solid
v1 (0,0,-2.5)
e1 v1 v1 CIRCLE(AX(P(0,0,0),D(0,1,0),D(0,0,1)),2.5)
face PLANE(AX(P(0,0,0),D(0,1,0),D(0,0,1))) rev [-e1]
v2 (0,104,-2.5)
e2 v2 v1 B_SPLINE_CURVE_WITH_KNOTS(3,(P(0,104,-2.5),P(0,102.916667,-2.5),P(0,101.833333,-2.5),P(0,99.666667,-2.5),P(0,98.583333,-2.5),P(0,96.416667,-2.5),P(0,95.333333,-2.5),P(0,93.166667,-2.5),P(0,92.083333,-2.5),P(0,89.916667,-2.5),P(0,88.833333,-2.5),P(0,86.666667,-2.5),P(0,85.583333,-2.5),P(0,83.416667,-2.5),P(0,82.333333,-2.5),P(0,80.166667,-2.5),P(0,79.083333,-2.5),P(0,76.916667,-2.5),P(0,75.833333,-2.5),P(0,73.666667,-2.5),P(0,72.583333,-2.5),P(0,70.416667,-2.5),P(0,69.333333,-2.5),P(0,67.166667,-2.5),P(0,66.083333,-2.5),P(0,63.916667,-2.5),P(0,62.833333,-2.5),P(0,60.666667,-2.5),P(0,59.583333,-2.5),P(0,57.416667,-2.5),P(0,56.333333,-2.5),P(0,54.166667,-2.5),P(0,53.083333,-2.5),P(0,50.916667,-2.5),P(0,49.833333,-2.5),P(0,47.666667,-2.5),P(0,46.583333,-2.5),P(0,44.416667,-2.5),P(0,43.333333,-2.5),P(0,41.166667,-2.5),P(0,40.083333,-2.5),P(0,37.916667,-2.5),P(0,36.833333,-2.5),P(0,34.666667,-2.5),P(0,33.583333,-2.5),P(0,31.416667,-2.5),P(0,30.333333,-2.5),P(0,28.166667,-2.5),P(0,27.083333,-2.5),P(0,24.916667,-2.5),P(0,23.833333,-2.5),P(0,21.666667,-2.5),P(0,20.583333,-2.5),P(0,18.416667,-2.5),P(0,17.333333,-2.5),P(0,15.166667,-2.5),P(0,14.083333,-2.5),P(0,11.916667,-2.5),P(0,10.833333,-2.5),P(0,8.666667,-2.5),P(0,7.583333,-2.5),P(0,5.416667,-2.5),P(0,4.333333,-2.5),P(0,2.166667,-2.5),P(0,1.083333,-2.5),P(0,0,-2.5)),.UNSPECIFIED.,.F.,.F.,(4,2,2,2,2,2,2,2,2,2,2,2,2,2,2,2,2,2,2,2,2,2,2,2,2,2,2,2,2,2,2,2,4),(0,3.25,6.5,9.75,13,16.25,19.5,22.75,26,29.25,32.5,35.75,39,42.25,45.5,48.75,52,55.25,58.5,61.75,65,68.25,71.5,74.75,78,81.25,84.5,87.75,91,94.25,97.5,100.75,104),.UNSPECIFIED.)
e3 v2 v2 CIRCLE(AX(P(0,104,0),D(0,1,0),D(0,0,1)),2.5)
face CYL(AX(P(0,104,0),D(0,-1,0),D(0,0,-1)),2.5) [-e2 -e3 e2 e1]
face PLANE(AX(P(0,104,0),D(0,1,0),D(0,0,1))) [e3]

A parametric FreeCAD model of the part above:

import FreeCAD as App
import Part
import Sketcher

V = App.Vector

doc = App.newDocument("Part")
params = doc.addObject("Spreadsheet::Sheet", "Params")
for row, (alias, value) in enumerate([
    ("sketch1_diameter", "5 mm"),
    ("pad1_length", "104 mm"),
], start=1):
    params.set(f"A{row}", alias)
    params.set(f"B{row}", "=" + value)
    params.setAlias(f"B{row}", alias)

body = doc.addObject("PartDesign::Body", "Body")

# Sketch on XZ plane
sketch1 = doc.addObject("Sketcher::SketchObject", "Sketch")
body.addObject(sketch1)
sketch1.AttachmentSupport = (doc.XZ_Plane, [""])
sketch1.MapMode = "FlatFace"
sketch1.addGeometry(Part.Circle(V(0, 0, 0), V(0, 0, 1), 2.5), False)
sketch1.addConstraint([
    Sketcher.Constraint("Coincident", 0, 3, -1, 1),
    Sketcher.Constraint("Diameter", 0, 5.0),
])
sketch1.setExpression("Constraints[1]", "Params.sketch1_diameter")
pad1 = doc.addObject("PartDesign::Pad", "Pad")
body.addObject(pad1)
pad1.Profile = sketch1
pad1.setExpression("Length", "Params.pad1_length")
pad1.Reversed = True

doc.recompute()
